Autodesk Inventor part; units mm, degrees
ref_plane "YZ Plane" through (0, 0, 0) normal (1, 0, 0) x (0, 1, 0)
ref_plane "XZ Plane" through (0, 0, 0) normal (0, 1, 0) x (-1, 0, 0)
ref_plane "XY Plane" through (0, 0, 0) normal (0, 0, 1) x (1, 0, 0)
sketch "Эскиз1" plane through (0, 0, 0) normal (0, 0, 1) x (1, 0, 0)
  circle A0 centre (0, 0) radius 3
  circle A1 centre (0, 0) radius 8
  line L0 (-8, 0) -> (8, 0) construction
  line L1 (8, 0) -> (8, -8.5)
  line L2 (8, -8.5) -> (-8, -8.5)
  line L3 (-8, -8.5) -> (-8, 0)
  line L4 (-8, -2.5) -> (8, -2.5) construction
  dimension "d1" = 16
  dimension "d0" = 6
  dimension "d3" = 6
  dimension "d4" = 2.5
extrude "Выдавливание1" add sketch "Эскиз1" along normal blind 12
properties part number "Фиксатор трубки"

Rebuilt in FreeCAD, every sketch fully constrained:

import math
import FreeCAD as App
import Part
import Sketcher

doc = App.newDocument("Part")
body = doc.addObject("PartDesign::Body", "Body")

sketch1 = body.newObject("Sketcher::SketchObject", "Sketch")
sketch1.AttachmentSupport = (doc.getObject("XY_Plane"), [""])
sketch1.MapMode = "FlatFace"
sketch1.addGeometry([
    Part.ArcOfCircle(Part.Circle(App.Vector(0, 0, 0), App.Vector(0, 0, 1), 8), math.radians(0), math.radians(180)),
    Part.LineSegment(App.Vector(-8, 0, 0), App.Vector(-8, -8.5, 0)),
    Part.LineSegment(App.Vector(-8, -8.5, 0), App.Vector(8, -8.5, 0)),
    Part.LineSegment(App.Vector(8, -8.5, 0), App.Vector(8, 0, 0)),
    Part.Circle(App.Vector(0, 0, 0), App.Vector(0, 0, 1), 3),
], False)
sketch1.addConstraint([
    Sketcher.Constraint("Tangent", 0, 2, 1, 1),
    Sketcher.Constraint("Coincident", 1, 2, 2, 1),
    Sketcher.Constraint("Coincident", 2, 2, 3, 1),
    Sketcher.Constraint("Tangent", 3, 2, 0, 1),
    Sketcher.Constraint("Vertical", 1),
    Sketcher.Constraint("Horizontal", 2),
    Sketcher.Constraint("Vertical", 3),
    Sketcher.Constraint("Coincident", 0, 3, -1, 1),
    Sketcher.Constraint("Coincident", 4, 3, -1, 1),
    Sketcher.Constraint("Diameter", 4, 6.0),
    Sketcher.Constraint("Radius", 0, 8.0),
    Sketcher.Constraint("DistanceY", 1, 2, 1, 1, 8.5),
])
pad1 = body.newObject("PartDesign::Pad", "Pad")
pad1.Profile = sketch1
pad1.Length = 12

doc.recompute()
